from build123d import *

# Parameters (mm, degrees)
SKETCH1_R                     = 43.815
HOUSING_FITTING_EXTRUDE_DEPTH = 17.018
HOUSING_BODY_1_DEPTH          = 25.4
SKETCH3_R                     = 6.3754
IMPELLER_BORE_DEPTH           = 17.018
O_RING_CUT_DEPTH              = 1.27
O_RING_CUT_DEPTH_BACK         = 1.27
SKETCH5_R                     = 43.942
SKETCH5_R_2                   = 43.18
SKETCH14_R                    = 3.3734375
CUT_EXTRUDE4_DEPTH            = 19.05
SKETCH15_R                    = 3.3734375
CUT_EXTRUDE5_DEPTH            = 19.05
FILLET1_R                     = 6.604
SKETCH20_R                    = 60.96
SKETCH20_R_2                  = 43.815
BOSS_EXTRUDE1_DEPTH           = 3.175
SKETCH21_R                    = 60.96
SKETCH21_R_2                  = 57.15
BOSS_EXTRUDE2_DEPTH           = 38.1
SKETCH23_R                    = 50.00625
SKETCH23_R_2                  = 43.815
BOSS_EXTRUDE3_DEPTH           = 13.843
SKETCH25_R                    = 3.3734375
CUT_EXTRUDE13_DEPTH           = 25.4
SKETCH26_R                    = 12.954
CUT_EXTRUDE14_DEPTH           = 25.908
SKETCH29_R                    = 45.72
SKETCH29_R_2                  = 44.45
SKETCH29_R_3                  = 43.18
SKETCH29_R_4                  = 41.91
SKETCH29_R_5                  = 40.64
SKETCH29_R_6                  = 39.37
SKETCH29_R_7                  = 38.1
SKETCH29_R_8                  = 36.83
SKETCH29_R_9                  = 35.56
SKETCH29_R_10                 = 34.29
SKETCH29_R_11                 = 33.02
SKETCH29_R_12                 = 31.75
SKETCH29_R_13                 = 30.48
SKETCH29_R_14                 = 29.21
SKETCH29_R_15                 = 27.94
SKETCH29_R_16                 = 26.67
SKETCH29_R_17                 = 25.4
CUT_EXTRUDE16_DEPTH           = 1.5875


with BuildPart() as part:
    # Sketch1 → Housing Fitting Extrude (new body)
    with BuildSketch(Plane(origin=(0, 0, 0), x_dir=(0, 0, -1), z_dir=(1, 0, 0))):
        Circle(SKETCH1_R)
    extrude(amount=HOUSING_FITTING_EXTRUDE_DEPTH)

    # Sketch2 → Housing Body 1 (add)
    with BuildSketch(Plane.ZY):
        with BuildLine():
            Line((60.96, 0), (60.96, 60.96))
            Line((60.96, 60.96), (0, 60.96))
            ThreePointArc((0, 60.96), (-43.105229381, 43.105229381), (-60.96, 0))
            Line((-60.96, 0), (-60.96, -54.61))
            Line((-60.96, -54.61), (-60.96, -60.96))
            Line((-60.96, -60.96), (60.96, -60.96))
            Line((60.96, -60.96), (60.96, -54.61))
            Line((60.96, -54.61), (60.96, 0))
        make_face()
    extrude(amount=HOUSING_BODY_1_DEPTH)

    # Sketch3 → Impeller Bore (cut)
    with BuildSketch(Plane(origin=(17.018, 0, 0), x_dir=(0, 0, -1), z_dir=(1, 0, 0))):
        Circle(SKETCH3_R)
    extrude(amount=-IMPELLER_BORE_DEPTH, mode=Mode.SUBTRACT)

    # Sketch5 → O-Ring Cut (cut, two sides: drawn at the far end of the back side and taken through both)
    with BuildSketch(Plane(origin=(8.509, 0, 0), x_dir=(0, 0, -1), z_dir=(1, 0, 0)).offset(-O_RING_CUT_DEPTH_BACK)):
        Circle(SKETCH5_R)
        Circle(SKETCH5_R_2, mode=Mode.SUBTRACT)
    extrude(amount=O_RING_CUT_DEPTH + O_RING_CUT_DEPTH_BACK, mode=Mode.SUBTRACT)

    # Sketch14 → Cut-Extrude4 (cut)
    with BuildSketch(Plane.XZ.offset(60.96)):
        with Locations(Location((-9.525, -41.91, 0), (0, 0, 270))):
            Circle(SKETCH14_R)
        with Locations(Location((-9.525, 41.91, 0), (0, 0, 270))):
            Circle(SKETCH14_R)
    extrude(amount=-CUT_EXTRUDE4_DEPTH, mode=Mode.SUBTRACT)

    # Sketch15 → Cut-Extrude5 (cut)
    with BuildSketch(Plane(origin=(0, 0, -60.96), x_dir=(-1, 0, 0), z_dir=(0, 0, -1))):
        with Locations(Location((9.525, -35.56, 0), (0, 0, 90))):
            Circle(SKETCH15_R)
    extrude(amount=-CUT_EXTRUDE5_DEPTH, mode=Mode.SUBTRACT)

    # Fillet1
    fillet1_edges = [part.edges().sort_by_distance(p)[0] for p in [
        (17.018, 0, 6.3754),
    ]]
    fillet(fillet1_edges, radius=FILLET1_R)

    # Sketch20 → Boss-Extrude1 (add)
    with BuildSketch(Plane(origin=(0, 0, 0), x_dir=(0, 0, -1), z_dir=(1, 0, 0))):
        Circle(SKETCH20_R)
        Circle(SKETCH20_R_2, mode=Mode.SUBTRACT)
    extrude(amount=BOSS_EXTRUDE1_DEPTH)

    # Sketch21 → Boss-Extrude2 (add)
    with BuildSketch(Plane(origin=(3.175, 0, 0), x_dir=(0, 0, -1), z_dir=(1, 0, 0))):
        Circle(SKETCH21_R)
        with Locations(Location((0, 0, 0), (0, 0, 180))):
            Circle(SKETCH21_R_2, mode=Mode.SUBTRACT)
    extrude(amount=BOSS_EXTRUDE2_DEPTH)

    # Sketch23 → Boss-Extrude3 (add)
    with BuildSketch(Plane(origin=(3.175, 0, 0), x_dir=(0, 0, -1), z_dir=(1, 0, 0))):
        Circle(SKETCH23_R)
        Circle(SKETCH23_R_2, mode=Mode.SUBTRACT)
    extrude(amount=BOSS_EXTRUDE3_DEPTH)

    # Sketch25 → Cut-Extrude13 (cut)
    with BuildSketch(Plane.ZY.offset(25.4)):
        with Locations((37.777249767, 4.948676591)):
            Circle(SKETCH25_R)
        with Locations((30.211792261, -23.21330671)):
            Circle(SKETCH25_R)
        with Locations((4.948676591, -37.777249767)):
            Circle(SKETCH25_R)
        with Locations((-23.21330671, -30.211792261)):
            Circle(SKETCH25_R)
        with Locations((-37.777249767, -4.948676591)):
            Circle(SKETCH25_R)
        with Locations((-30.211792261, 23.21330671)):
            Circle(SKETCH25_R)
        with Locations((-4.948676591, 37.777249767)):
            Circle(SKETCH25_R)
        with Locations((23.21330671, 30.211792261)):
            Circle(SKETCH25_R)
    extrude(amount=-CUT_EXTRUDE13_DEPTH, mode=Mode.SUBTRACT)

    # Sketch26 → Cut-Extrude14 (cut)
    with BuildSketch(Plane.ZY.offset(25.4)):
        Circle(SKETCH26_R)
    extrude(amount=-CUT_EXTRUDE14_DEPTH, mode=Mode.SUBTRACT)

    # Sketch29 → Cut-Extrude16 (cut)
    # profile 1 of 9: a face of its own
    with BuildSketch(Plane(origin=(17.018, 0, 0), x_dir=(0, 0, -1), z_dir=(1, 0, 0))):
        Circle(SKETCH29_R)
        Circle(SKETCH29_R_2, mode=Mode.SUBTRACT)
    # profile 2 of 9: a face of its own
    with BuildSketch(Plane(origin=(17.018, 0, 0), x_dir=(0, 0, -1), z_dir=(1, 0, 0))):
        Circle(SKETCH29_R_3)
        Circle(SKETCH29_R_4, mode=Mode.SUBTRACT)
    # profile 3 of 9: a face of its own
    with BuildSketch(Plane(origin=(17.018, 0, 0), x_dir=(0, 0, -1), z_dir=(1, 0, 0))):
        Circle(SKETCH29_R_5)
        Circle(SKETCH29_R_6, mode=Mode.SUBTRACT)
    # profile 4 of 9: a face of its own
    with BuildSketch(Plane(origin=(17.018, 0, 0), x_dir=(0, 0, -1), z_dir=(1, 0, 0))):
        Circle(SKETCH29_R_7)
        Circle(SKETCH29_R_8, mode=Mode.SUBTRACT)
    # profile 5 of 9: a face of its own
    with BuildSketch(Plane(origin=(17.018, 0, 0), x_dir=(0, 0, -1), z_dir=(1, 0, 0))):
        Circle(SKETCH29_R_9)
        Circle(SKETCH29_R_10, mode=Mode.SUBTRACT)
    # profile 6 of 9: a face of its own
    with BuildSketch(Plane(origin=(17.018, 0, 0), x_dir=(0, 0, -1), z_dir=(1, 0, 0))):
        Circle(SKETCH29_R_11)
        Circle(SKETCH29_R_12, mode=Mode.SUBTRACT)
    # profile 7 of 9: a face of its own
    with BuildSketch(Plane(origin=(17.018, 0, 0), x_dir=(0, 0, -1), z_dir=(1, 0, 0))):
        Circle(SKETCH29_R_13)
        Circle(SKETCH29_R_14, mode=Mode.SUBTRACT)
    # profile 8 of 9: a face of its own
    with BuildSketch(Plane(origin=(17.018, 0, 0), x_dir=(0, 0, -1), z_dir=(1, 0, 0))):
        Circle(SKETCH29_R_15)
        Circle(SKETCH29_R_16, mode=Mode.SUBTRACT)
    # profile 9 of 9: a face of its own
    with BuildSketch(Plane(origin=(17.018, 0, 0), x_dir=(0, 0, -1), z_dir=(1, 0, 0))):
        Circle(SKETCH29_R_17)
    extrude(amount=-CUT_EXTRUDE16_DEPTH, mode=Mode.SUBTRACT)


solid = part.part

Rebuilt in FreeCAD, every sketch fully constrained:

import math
import FreeCAD as App
import Part
import Sketcher

V = App.Vector
Q = App.Units.Quantity


def edges_at(feature, points):
    """Names of the edges that pass closest to the given points."""
    edges = feature.Shape.Edges
    near = lambda p: min(range(len(edges)), key=lambda i: edges[i].distToShape(Part.Vertex(*p))[0])
    return sorted({f"Edge{near(p) + 1}" for p in points})

doc = App.newDocument("Part")
params = doc.addObject("Spreadsheet::Sheet", "Params")
for row, (alias, value) in enumerate([
    ("sketch1_diameter", "3.45 in"),
    ("pad1_length", "0.67 in"),
    ("sketch2_radius", "2.4 in"),
    ("pad2_length", "1 in"),
    ("sketch3_diameter", "0.502 in"),
    ("pocket1_length", "0.67 in"),
    ("sketch4_diameter", "3.4 in"),
    ("sketch4_diameter2", "3.46 in"),
    ("pocket2_length", "0.05 in"),
    ("pocket2_length2", "0.05 in"),
    ("sketch5_diameter", "0.265625 in"),
    ("pocket3_length", "0.75 in"),
    ("sketch6_diameter", "0.265625 in"),
    ("pocket4_length", "0.75 in"),
    ("fillet_radius", "0.26 in"),
    ("sketch7_diameter", "4.8 in"),
    ("sketch7_diameter2", "3.45 in"),
    ("pad3_length", "0.125 in"),
    ("sketch8_diameter", "4.8 in"),
    ("sketch8_diameter2", "4.5 in"),
    ("pad4_length", "1.5 in"),
    ("sketch9_diameter", "3.45 in"),
    ("sketch9_diameter2", "3.9375 in"),
    ("pad5_length", "0.545 in"),
    ("sketch10_diameter", "0.265625 in"),
    ("pocket5_length", "1 in"),
    ("sketch11_diameter", "1.02 in"),
    ("pocket6_length", "1.02 in"),
    ("sketch12_diameter", "3 in"),
    ("sketch12_diameter2", "2 in"),
    ("sketch12_diameter3", "3.6 in"),
    ("sketch12_diameter4", "3.5 in"),
    ("sketch12_diameter5", "3.4 in"),
    ("pocket7_length", "0.0625 in"),
], start=1):
    params.set(f"A{row}", alias)
    params.set(f"B{row}", "=" + value)
    params.setAlias(f"B{row}", alias)

body = doc.addObject("PartDesign::Body", "Body")

sketch1 = doc.addObject("Sketcher::SketchObject", "Sketch")
body.addObject(sketch1)
sketch1.AttachmentSupport = (doc.YZ_Plane, [""])
sketch1.MapMode = "FlatFace"
sketch1.addGeometry(Part.Circle(V(0, 0, 0), V(0, 0, 1), 44), False)
sketch1.addConstraint(Sketcher.Constraint("Coincident", 0, 3, -1, 1))
sketch1.addConstraint(Sketcher.Constraint("Diameter", 0, Q("3.45 in")))
sketch1.setExpression("Constraints[1]", "Params.sketch1_diameter")
pad1 = doc.addObject("PartDesign::Pad", "Pad")
body.addObject(pad1)
pad1.Profile = sketch1
pad1.setExpression("Length", "Params.pad1_length")

sketch2 = doc.addObject("Sketcher::SketchObject", "Sketch001")
body.addObject(sketch2)
sketch2.AttachmentSupport = (doc.YZ_Plane, [""])
sketch2.MapMode = "FlatFace"
sketch2.addGeometry(Part.LineSegment(V(61, 61, 0), V(61, 0, 0)), False)
sketch2.addGeometry(Part.ArcOfCircle(Part.Circle(V(0, 0, 0), V(0, 0, 1), 61), math.radians(-90), math.radians(0)), False)
sketch2.addGeometry(Part.LineSegment(V(0, -61, 0), V(-61, -61, 0)), False)
sketch2.addGeometry(Part.LineSegment(V(-61, -61, 0), V(-61, 61, 0)), False)
sketch2.addGeometry(Part.LineSegment(V(-61, 61, 0), V(61, 61, 0)), False)
sketch2.addConstraint(Sketcher.Constraint("Tangent", 0, 2, 1, 2))
sketch2.addConstraint(Sketcher.Constraint("Tangent", 1, 1, 2, 1))
sketch2.addConstraint(Sketcher.Constraint("Coincident", 2, 2, 3, 1))
sketch2.addConstraint(Sketcher.Constraint("Coincident", 3, 2, 4, 1))
sketch2.addConstraint(Sketcher.Constraint("Coincident", 4, 2, 0, 1))
sketch2.addConstraint(Sketcher.Constraint("Vertical", 0))
sketch2.addConstraint(Sketcher.Constraint("Horizontal", 2))
sketch2.addConstraint(Sketcher.Constraint("Vertical", 3))
sketch2.addConstraint(Sketcher.Constraint("Horizontal", 4))
sketch2.addConstraint(Sketcher.Constraint("Coincident", 1, 3, -1, 1))
sketch2.addConstraint(Sketcher.Constraint("Symmetric", 2, 2, 4, 2, -1, 1))
sketch2.addConstraint(Sketcher.Constraint("Radius", 1, Q("2.4 in")))
sketch2.setExpression("Constraints[11]", "Params.sketch2_radius")
pad2 = doc.addObject("PartDesign::Pad", "Pad001")
body.addObject(pad2)
pad2.Profile = sketch2
pad2.setExpression("Length", "Params.pad2_length")
pad2.Reversed = True

sketch3 = doc.addObject("Sketcher::SketchObject", "Sketch002")
body.addObject(sketch3)
sketch3.AttachmentSupport = (doc.YZ_Plane, [""])
sketch3.MapMode = "FlatFace"
sketch3.AttachmentOffset = App.Placement(V(0, 0, 0.67 * 25.4), App.Rotation())
sketch3.addGeometry(Part.Circle(V(0, 0, 0), V(0, 0, 1), 6), False)
sketch3.addConstraint(Sketcher.Constraint("Coincident", 0, 3, -1, 1))
sketch3.addConstraint(Sketcher.Constraint("Diameter", 0, Q("0.502 in")))
sketch3.setExpression("Constraints[1]", "Params.sketch3_diameter")
pocket1 = doc.addObject("PartDesign::Pocket", "Pocket")
body.addObject(pocket1)
pocket1.Profile = sketch3
pocket1.setExpression("Length", "Params.pocket1_length")

sketch4 = doc.addObject("Sketcher::SketchObject", "Sketch003")
body.addObject(sketch4)
sketch4.AttachmentSupport = (doc.YZ_Plane, [""])
sketch4.MapMode = "FlatFace"
sketch4.AttachmentOffset = App.Placement(V(0, 0, 0.335 * 25.4), App.Rotation())
sketch4.addGeometry(Part.Circle(V(0, 0, 0), V(0, 0, 1), 44), False)
sketch4.addGeometry(Part.Circle(V(0, 0, 0), V(0, 0, 1), 43), False)
sketch4.addConstraint(Sketcher.Constraint("Coincident", 0, 3, -1, 1))
sketch4.addConstraint(Sketcher.Constraint("Coincident", 1, 3, -1, 1))
sketch4.addConstraint(Sketcher.Constraint("Diameter", 1, Q("3.4 in")))
sketch4.addConstraint(Sketcher.Constraint("Diameter", 0, Q("3.46 in")))
sketch4.setExpression("Constraints[2]", "Params.sketch4_diameter")
sketch4.setExpression("Constraints[3]", "Params.sketch4_diameter2")
pocket2 = doc.addObject("PartDesign::Pocket", "Pocket001")
body.addObject(pocket2)
pocket2.Profile = sketch4
pocket2.Type = "TwoLengths"
pocket2.setExpression("Length", "Params.pocket2_length")
pocket2.setExpression("Length2", "Params.pocket2_length2")
pocket2.Reversed = True

sketch5 = doc.addObject("Sketcher::SketchObject", "Sketch004")
body.addObject(sketch5)
sketch5.AttachmentSupport = (doc.XZ_Plane, [""])
sketch5.MapMode = "FlatFace"
sketch5.AttachmentOffset = App.Placement(V(0, 0, 2.4 * 25.4), App.Rotation())
sketch5.addGeometry(Part.Circle(V(-9.5, -41.9, 0), V(0, 0, 1), 3.4), False)
sketch5.addGeometry(Part.Circle(V(-9.5, 41.9, 0), V(0, 0, 1), 3.4), False)
sketch5.addConstraint(Sketcher.Constraint("Equal", 0, 1))
sketch5.addConstraint(Sketcher.Constraint("Symmetric", 0, 3, 1, 3, -1))
sketch5.addConstraint(Sketcher.Constraint("Diameter", 0, Q("0.265625 in")))
sketch5.addConstraint(Sketcher.Constraint("DistanceY", 0, 3, 1, 3, Q("3.3 in")))
sketch5.addConstraint(Sketcher.Constraint("DistanceX", 0, 3, -1, 1, Q("0.375 in")))
sketch5.setExpression("Constraints[2]", "Params.sketch5_diameter")
pocket3 = doc.addObject("PartDesign::Pocket", "Pocket002")
body.addObject(pocket3)
pocket3.Profile = sketch5
pocket3.setExpression("Length", "Params.pocket3_length")

sketch6 = doc.addObject("Sketcher::SketchObject", "Sketch005")
body.addObject(sketch6)
sketch6.AttachmentSupport = (doc.XY_Plane, [""])
sketch6.MapMode = "FlatFace"
sketch6.AttachmentOffset = App.Placement(V(0, 0, -2.4 * 25.4), App.Rotation())
sketch6.addGeometry(Part.Circle(V(-9.5, -35.6, 0), V(0, 0, 1), 3.4), False)
sketch6.addConstraint(Sketcher.Constraint("Diameter", 0, Q("0.265625 in")))
sketch6.addConstraint(Sketcher.Constraint("DistanceY", 0, 3, -1, 1, Q("1.4 in")))
sketch6.addConstraint(Sketcher.Constraint("DistanceX", 0, 3, -1, 1, Q("0.375 in")))
sketch6.setExpression("Constraints[0]", "Params.sketch6_diameter")
pocket4 = doc.addObject("PartDesign::Pocket", "Pocket003")
body.addObject(pocket4)
pocket4.Profile = sketch6
pocket4.setExpression("Length", "Params.pocket4_length")
pocket4.Reversed = True
doc.recompute()

fillet = doc.addObject("PartDesign::Fillet", "Fillet")
body.addObject(fillet)
fillet.Base = (pocket4, edges_at(pocket4, [(17.018, 0, 6.375)]))
fillet.setExpression("Radius", "Params.fillet_radius")

sketch7 = doc.addObject("Sketcher::SketchObject", "Sketch006")
body.addObject(sketch7)
sketch7.AttachmentSupport = (doc.YZ_Plane, [""])
sketch7.MapMode = "FlatFace"
sketch7.addGeometry(Part.Circle(V(0, 0, 0), V(0, 0, 1), 61), False)
sketch7.addGeometry(Part.Circle(V(0, 0, 0), V(0, 0, 1), 44), False)
sketch7.addConstraint(Sketcher.Constraint("Coincident", 0, 3, -1, 1))
sketch7.addConstraint(Sketcher.Constraint("Coincident", 1, 3, -1, 1))
sketch7.addConstraint(Sketcher.Constraint("Diameter", 0, Q("4.8 in")))
sketch7.addConstraint(Sketcher.Constraint("Diameter", 1, Q("3.45 in")))
sketch7.setExpression("Constraints[2]", "Params.sketch7_diameter")
sketch7.setExpression("Constraints[3]", "Params.sketch7_diameter2")
pad3 = doc.addObject("PartDesign::Pad", "Pad002")
body.addObject(pad3)
pad3.Profile = sketch7
pad3.setExpression("Length", "Params.pad3_length")

sketch8 = doc.addObject("Sketcher::SketchObject", "Sketch007")
body.addObject(sketch8)
sketch8.AttachmentSupport = (doc.YZ_Plane, [""])
sketch8.MapMode = "FlatFace"
sketch8.AttachmentOffset = App.Placement(V(0, 0, 0.125 * 25.4), App.Rotation())
sketch8.addGeometry(Part.Circle(V(0, 0, 0), V(0, 0, 1), 61), False)
sketch8.addGeometry(Part.Circle(V(0, 0, 0), V(0, 0, 1), 57), False)
sketch8.addConstraint(Sketcher.Constraint("Coincident", 0, 3, -1, 1))
sketch8.addConstraint(Sketcher.Constraint("Coincident", 1, 3, -1, 1))
sketch8.addConstraint(Sketcher.Constraint("Diameter", 0, Q("4.8 in")))
sketch8.addConstraint(Sketcher.Constraint("Diameter", 1, Q("4.5 in")))
sketch8.setExpression("Constraints[2]", "Params.sketch8_diameter")
sketch8.setExpression("Constraints[3]", "Params.sketch8_diameter2")
pad4 = doc.addObject("PartDesign::Pad", "Pad003")
body.addObject(pad4)
pad4.Profile = sketch8
pad4.setExpression("Length", "Params.pad4_length")

sketch9 = doc.addObject("Sketcher::SketchObject", "Sketch008")
body.addObject(sketch9)
sketch9.AttachmentSupport = (doc.YZ_Plane, [""])
sketch9.MapMode = "FlatFace"
sketch9.AttachmentOffset = App.Placement(V(0, 0, 0.125 * 25.4), App.Rotation())
sketch9.addGeometry(Part.Circle(V(0, 0, 0), V(0, 0, 1), 50), False)
sketch9.addGeometry(Part.Circle(V(0, 0, 0), V(0, 0, 1), 44), False)
sketch9.addConstraint(Sketcher.Constraint("Coincident", 0, 3, -1, 1))
sketch9.addConstraint(Sketcher.Constraint("Coincident", 1, 3, -1, 1))
sketch9.addConstraint(Sketcher.Constraint("Diameter", 1, Q("3.45 in")))
sketch9.addConstraint(Sketcher.Constraint("Diameter", 0, Q("3.9375 in")))
sketch9.setExpression("Constraints[2]", "Params.sketch9_diameter")
sketch9.setExpression("Constraints[3]", "Params.sketch9_diameter2")
pad5 = doc.addObject("PartDesign::Pad", "Pad004")
body.addObject(pad5)
pad5.Profile = sketch9
pad5.setExpression("Length", "Params.pad5_length")

sketch10 = doc.addObject("Sketcher::SketchObject", "Sketch009")
body.addObject(sketch10)
sketch10.AttachmentSupport = (doc.YZ_Plane, [""])
sketch10.MapMode = "FlatFace"
sketch10.AttachmentOffset = App.Placement(V(0, 0, -1 * 25.4), App.Rotation())
sketch10.addGeometry(Part.Circle(V(4.9, 37.8, 0), V(0, 0, 1), 3.4), False)
sketch10.addGeometry(Part.Circle(V(-23.2, 30.2, 0), V(0, 0, 1), 3.4), False)
sketch10.addGeometry(Part.Circle(V(-37.8, 4.9, 0), V(0, 0, 1), 3.4), False)
sketch10.addGeometry(Part.Circle(V(-30.2, -23.2, 0), V(0, 0, 1), 3.4), False)
sketch10.addGeometry(Part.Circle(V(-4.9, -37.8, 0), V(0, 0, 1), 3.4), False)
sketch10.addGeometry(Part.Circle(V(23.2, -30.2, 0), V(0, 0, 1), 3.4), False)
sketch10.addGeometry(Part.Circle(V(37.8, -4.9, 0), V(0, 0, 1), 3.4), False)
sketch10.addGeometry(Part.Circle(V(30.2, 23.2, 0), V(0, 0, 1), 3.4), False)
sketch10.addConstraint(Sketcher.Constraint("Equal", 0, 1))
sketch10.addConstraint(Sketcher.Constraint("Equal", 1, 2))
sketch10.addConstraint(Sketcher.Constraint("Equal", 2, 3))
sketch10.addConstraint(Sketcher.Constraint("Equal", 3, 4))
sketch10.addConstraint(Sketcher.Constraint("Equal", 4, 5))
sketch10.addConstraint(Sketcher.Constraint("Equal", 5, 6))
sketch10.addConstraint(Sketcher.Constraint("Equal", 6, 7))
sketch10.addConstraint(Sketcher.Constraint("Symmetric", 0, 3, 4, 3, -1, 1))
sketch10.addConstraint(Sketcher.Constraint("Symmetric", 1, 3, 5, 3, -1, 1))
sketch10.addConstraint(Sketcher.Constraint("Symmetric", 2, 3, 6, 3, -1, 1))
sketch10.addConstraint(Sketcher.Constraint("Symmetric", 3, 3, 7, 3, -1, 1))
sketch10.addConstraint(Sketcher.Constraint("Diameter", 0, Q("0.265625 in")))
sketch10.addConstraint(Sketcher.Constraint("DistanceY", 3, 3, 1, 3, 53.425099))
sketch10.addConstraint(Sketcher.Constraint("DistanceY", 4, 3, 0, 3, 75.5545))
sketch10.addConstraint(Sketcher.Constraint("DistanceX", 3, 3, 5, 3, 53.425099))
sketch10.addConstraint(Sketcher.Constraint("DistanceX", 2, 3, -1, 1, 37.77725))
sketch10.addConstraint(Sketcher.Constraint("DistanceX", 3, 3, 0, 3, 35.160469))
sketch10.addConstraint(Sketcher.Constraint("DistanceY", 5, 3, 2, 3, 35.160469))
sketch10.addConstraint(Sketcher.Constraint("DistanceX", -1, 1, 0, 3, 4.948677))
sketch10.addConstraint(Sketcher.Constraint("DistanceY", -1, 1, 1, 3, 30.211792))
sketch10.setExpression("Constraints[11]", "Params.sketch10_diameter")
pocket5 = doc.addObject("PartDesign::Pocket", "Pocket004")
body.addObject(pocket5)
pocket5.Profile = sketch10
pocket5.setExpression("Length", "Params.pocket5_length")
pocket5.Reversed = True

sketch11 = doc.addObject("Sketcher::SketchObject", "Sketch010")
body.addObject(sketch11)
sketch11.AttachmentSupport = (doc.YZ_Plane, [""])
sketch11.MapMode = "FlatFace"
sketch11.AttachmentOffset = App.Placement(V(0, 0, -1 * 25.4), App.Rotation())
sketch11.addGeometry(Part.Circle(V(0, 0, 0), V(0, 0, 1), 13), False)
sketch11.addConstraint(Sketcher.Constraint("Coincident", 0, 3, -1, 1))
sketch11.addConstraint(Sketcher.Constraint("Diameter", 0, Q("1.02 in")))
sketch11.setExpression("Constraints[1]", "Params.sketch11_diameter")
pocket6 = doc.addObject("PartDesign::Pocket", "Pocket005")
body.addObject(pocket6)
pocket6.Profile = sketch11
pocket6.setExpression("Length", "Params.pocket6_length")
pocket6.Reversed = True

sketch12 = doc.addObject("Sketcher::SketchObject", "Sketch011")
body.addObject(sketch12)
sketch12.AttachmentSupport = (doc.YZ_Plane, [""])
sketch12.MapMode = "FlatFace"
sketch12.AttachmentOffset = App.Placement(V(0, 0, 0.67 * 25.4), App.Rotation())
sketch12.addGeometry(Part.Circle(V(0, 0, 0), V(0, 0, 1), 46), False)
sketch12.addGeometry(Part.Circle(V(0, 0, 0), V(0, 0, 1), 44), False)
sketch12.addGeometry(Part.Circle(V(0, 0, 0), V(0, 0, 1), 43), False)
sketch12.addGeometry(Part.Circle(V(0, 0, 0), V(0, 0, 1), 42), False)
sketch12.addGeometry(Part.Circle(V(0, 0, 0), V(0, 0, 1), 41), False)
sketch12.addGeometry(Part.Circle(V(0, 0, 0), V(0, 0, 1), 39), False)
sketch12.addGeometry(Part.Circle(V(0, 0, 0), V(0, 0, 1), 38), False)
sketch12.addGeometry(Part.Circle(V(0, 0, 0), V(0, 0, 1), 37), False)
sketch12.addGeometry(Part.Circle(V(0, 0, 0), V(0, 0, 1), 36), False)
sketch12.addGeometry(Part.Circle(V(0, 0, 0), V(0, 0, 1), 34), False)
sketch12.addGeometry(Part.Circle(V(0, 0, 0), V(0, 0, 1), 33), False)
sketch12.addGeometry(Part.Circle(V(0, 0, 0), V(0, 0, 1), 32), False)
sketch12.addGeometry(Part.Circle(V(0, 0, 0), V(0, 0, 1), 30), False)
sketch12.addGeometry(Part.Circle(V(0, 0, 0), V(0, 0, 1), 29), False)
sketch12.addGeometry(Part.Circle(V(0, 0, 0), V(0, 0, 1), 28), False)
sketch12.addGeometry(Part.Circle(V(0, 0, 0), V(0, 0, 1), 27), False)
sketch12.addGeometry(Part.Circle(V(0, 0, 0), V(0, 0, 1), 25), False)
sketch12.addConstraint(Sketcher.Constraint("Coincident", 0, 3, -1, 1))
sketch12.addConstraint(Sketcher.Constraint("Coincident", 1, 3, -1, 1))
sketch12.addConstraint(Sketcher.Constraint("Coincident", 2, 3, -1, 1))
sketch12.addConstraint(Sketcher.Constraint("Coincident", 3, 3, -1, 1))
sketch12.addConstraint(Sketcher.Constraint("Coincident", 4, 3, -1, 1))
sketch12.addConstraint(Sketcher.Constraint("Coincident", 5, 3, -1, 1))
sketch12.addConstraint(Sketcher.Constraint("Coincident", 6, 3, -1, 1))
sketch12.addConstraint(Sketcher.Constraint("Coincident", 7, 3, -1, 1))
sketch12.addConstraint(Sketcher.Constraint("Coincident", 8, 3, -1, 1))
sketch12.addConstraint(Sketcher.Constraint("Coincident", 9, 3, -1, 1))
sketch12.addConstraint(Sketcher.Constraint("Coincident", 10, 3, -1, 1))
sketch12.addConstraint(Sketcher.Constraint("Coincident", 11, 3, -1, 1))
sketch12.addConstraint(Sketcher.Constraint("Coincident", 12, 3, -1, 1))
sketch12.addConstraint(Sketcher.Constraint("Coincident", 13, 3, -1, 1))
sketch12.addConstraint(Sketcher.Constraint("Coincident", 14, 3, -1, 1))
sketch12.addConstraint(Sketcher.Constraint("Coincident", 15, 3, -1, 1))
sketch12.addConstraint(Sketcher.Constraint("Coincident", 16, 3, -1, 1))
sketch12.addConstraint(Sketcher.Constraint("Diameter", 6, Q("3 in")))
sketch12.addConstraint(Sketcher.Constraint("Diameter", 16, Q("2 in")))
sketch12.addConstraint(Sketcher.Constraint("Diameter", 0, Q("3.6 in")))
sketch12.addConstraint(Sketcher.Constraint("Diameter", 1, Q("3.5 in")))
sketch12.addConstraint(Sketcher.Constraint("Diameter", 2, Q("3.4 in")))
sketch12.addConstraint(Sketcher.Constraint("Diameter", 3, Q("3.3 in")))
sketch12.addConstraint(Sketcher.Constraint("Diameter", 4, Q("3.2 in")))
sketch12.addConstraint(Sketcher.Constraint("Diameter", 5, Q("3.1 in")))
sketch12.addConstraint(Sketcher.Constraint("Diameter", 7, Q("2.9 in")))
sketch12.addConstraint(Sketcher.Constraint("Diameter", 8, Q("2.8 in")))
sketch12.addConstraint(Sketcher.Constraint("Diameter", 9, Q("2.7 in")))
sketch12.addConstraint(Sketcher.Constraint("Diameter", 10, Q("2.6 in")))
sketch12.addConstraint(Sketcher.Constraint("Diameter", 11, Q("2.5 in")))
sketch12.addConstraint(Sketcher.Constraint("Diameter", 12, Q("2.4 in")))
sketch12.addConstraint(Sketcher.Constraint("Diameter", 13, Q("2.3 in")))
sketch12.addConstraint(Sketcher.Constraint("Diameter", 14, Q("2.2 in")))
sketch12.addConstraint(Sketcher.Constraint("Diameter", 15, Q("2.1 in")))
sketch12.setExpression("Constraints[17]", "Params.sketch12_diameter")
sketch12.setExpression("Constraints[18]", "Params.sketch12_diameter2")
sketch12.setExpression("Constraints[19]", "Params.sketch12_diameter3")
sketch12.setExpression("Constraints[20]", "Params.sketch12_diameter4")
sketch12.setExpression("Constraints[21]", "Params.sketch12_diameter5")
pocket7 = doc.addObject("PartDesign::Pocket", "Pocket006")
body.addObject(pocket7)
pocket7.Profile = sketch12
pocket7.setExpression("Length", "Params.pocket7_length")

doc.recompute()
